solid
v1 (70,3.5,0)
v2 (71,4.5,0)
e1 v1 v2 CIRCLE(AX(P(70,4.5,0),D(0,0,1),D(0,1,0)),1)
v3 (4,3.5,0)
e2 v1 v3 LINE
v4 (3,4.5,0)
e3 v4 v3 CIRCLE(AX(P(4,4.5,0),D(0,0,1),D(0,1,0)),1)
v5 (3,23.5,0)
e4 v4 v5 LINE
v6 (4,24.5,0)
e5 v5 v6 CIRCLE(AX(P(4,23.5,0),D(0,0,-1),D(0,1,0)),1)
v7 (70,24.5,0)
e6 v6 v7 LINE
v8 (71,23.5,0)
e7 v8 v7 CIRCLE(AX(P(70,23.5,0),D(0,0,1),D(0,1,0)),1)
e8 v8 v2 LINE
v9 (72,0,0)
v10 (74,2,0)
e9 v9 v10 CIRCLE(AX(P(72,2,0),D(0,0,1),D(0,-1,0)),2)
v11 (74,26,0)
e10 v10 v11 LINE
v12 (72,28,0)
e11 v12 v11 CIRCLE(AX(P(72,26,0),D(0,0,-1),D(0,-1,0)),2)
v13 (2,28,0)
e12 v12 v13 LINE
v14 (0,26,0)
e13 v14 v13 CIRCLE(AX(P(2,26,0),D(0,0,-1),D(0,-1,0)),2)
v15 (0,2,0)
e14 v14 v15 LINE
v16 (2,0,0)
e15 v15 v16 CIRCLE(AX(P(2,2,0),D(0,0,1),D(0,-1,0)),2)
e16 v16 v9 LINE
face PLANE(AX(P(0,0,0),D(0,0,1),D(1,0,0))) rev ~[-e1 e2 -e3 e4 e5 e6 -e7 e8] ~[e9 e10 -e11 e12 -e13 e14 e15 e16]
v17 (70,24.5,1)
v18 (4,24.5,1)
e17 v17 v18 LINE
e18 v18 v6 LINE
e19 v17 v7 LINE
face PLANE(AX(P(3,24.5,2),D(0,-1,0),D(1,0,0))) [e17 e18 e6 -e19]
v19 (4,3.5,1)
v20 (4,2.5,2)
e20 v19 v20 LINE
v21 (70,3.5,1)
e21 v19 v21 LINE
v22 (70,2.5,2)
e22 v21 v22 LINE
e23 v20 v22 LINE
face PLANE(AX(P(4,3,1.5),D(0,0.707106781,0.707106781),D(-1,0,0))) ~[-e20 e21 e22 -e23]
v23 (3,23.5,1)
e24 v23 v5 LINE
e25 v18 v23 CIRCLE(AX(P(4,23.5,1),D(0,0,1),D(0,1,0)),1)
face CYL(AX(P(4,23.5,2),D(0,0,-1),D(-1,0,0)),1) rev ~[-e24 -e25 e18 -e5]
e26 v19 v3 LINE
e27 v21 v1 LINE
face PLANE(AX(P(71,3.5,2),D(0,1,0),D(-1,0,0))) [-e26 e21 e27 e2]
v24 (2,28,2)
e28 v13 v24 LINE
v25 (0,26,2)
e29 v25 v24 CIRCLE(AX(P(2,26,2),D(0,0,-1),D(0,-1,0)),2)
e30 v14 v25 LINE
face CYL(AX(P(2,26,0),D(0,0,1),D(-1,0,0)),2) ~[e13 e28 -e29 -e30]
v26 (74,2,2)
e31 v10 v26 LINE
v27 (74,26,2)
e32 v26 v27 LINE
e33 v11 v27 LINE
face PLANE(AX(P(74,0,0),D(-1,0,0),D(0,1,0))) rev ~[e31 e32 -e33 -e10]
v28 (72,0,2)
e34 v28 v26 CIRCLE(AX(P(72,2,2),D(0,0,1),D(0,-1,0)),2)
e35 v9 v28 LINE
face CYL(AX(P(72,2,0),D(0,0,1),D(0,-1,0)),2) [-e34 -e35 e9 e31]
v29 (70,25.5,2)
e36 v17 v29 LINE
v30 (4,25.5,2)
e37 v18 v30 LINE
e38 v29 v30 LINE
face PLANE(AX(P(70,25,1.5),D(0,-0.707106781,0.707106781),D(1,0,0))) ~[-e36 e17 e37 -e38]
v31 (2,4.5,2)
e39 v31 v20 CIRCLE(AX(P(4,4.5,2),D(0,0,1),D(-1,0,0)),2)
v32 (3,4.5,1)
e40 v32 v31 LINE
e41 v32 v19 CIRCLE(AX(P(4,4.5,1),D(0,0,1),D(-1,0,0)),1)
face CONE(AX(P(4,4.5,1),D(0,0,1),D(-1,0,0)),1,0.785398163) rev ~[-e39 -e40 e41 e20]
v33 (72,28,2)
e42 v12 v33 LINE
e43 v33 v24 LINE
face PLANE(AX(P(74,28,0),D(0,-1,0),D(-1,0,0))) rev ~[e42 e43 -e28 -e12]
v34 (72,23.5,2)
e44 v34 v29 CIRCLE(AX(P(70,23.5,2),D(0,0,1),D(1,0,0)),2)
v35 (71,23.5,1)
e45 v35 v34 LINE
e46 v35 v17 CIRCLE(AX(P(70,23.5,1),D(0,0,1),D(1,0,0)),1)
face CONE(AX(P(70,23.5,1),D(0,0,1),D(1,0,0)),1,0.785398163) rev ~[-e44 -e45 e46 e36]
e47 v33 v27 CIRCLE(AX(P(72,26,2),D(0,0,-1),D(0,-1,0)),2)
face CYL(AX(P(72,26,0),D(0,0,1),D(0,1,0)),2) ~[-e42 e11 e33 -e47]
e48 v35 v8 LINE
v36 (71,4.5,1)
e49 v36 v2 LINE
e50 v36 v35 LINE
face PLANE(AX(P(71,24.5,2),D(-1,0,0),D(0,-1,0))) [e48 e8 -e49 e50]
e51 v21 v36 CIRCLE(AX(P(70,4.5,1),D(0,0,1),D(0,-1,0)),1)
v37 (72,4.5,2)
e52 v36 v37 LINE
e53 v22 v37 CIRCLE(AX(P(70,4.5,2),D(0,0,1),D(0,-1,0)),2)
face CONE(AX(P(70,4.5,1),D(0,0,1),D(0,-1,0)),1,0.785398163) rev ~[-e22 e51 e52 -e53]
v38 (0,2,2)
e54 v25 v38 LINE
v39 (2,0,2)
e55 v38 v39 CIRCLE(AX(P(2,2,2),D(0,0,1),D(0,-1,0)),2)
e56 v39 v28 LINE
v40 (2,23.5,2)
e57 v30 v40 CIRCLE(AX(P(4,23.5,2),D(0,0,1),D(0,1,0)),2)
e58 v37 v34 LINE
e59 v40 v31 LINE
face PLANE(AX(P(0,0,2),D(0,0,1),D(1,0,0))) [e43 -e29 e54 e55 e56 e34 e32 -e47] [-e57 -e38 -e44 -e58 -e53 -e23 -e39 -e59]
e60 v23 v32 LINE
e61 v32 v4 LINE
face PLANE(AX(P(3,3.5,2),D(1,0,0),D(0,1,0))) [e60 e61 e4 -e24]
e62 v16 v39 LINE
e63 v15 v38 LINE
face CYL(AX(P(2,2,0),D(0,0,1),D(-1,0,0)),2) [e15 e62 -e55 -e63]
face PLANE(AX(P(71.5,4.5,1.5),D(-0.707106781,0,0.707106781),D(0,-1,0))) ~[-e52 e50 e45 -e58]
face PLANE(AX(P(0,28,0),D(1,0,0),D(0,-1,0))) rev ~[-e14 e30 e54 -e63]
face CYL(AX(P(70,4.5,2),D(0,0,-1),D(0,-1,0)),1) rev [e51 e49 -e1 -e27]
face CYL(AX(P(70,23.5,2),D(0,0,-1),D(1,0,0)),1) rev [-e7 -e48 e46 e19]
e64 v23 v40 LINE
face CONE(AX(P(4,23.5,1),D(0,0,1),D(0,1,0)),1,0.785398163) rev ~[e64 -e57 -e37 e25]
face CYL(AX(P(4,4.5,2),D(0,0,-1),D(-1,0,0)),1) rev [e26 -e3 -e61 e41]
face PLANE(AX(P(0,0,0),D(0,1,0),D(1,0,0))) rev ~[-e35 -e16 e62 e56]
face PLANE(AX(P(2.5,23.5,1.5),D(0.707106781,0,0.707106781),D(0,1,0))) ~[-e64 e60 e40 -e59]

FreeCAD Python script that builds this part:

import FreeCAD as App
import Part
import Sketcher
from FreeCAD import Vector


def edges_at(feature, points):
    """Names of the edges that pass closest to the given points."""
    edges = feature.Shape.Edges
    near = lambda p: min(range(len(edges)), key=lambda i: edges[i].distToShape(Part.Vertex(*p))[0])
    return sorted({f"Edge{near(p) + 1}" for p in points})


def add_polygon(sketch, points):
    """Adds a closed chain of lines whose ends are joined by coincident constraints."""
    first, n = sketch.GeometryCount, len(points)
    for a, b in zip(points, points[1:] + points[:1]):
        sketch.addGeometry(Part.LineSegment(App.Vector(*a, 0), App.Vector(*b, 0)), False)
    for i in range(n):
        sketch.addConstraint(Sketcher.Constraint("Coincident", first + i, 2, first + (i + 1) % n, 1))

doc = App.newDocument("Part")
body = doc.addObject("PartDesign::Body", "Body")

# Sketch on XY plane
sketch1 = body.newObject("Sketcher::SketchObject", "Sketch")
sketch1.AttachmentSupport = (doc.getObject("XY_Plane"), [""])
sketch1.MapMode = "FlatFace"
add_polygon(sketch1, [(0, 28), (0, 0), (74, 0), (74, 28)])  # lines 0-3
sketch1.addConstraint([
    Sketcher.Constraint("Vertical", 0),
    Sketcher.Constraint("Horizontal", 1),
    Sketcher.Constraint("Vertical", 2),
    Sketcher.Constraint("Horizontal", 3),
    Sketcher.Constraint("Coincident", 0, 2, -1, 1),
    Sketcher.Constraint("DistanceX", 1, 1, 1, 2, 74.0),
    Sketcher.Constraint("DistanceY", 0, 2, 0, 1, 28.0),
])
pad1 = body.newObject("PartDesign::Pad", "Pad")
pad1.Profile = sketch1
pad1.Length = 2

# Sketch on XY plane
sketch2 = body.newObject("Sketcher::SketchObject", "Sketch001")
sketch2.AttachmentSupport = (doc.getObject("XY_Plane"), [""])
sketch2.MapMode = "FlatFace"
sketch2.AttachmentOffset = App.Placement(Vector(0, 0, 2), App.Rotation())
add_polygon(sketch2, [(71, 24), (3, 24), (3, 4), (71, 4)])  # lines 0-3
sketch2.addConstraint([
    Sketcher.Constraint("Horizontal", 0),
    Sketcher.Constraint("Vertical", 1),
    Sketcher.Constraint("Horizontal", 2),
    Sketcher.Constraint("Vertical", 3),
    Sketcher.Constraint("DistanceX", -1, 1, 0, 2, 3.0),
    Sketcher.Constraint("DistanceY", -1, 1, 1, 2, 3.5),
    Sketcher.Constraint("DistanceX", 0, 2, 0, 1, 68.0),
    Sketcher.Constraint("DistanceY", 1, 2, 1, 1, 21.0),
])
pocket1 = body.newObject("PartDesign::Pocket", "Pocket")
pocket1.Profile = sketch2
pocket1.Length = 2
doc.recompute()

fillet = body.newObject("PartDesign::Fillet", "Fillet")
fillet.Base = (pocket1, edges_at(pocket1, [
    (74, 0, 1),
    (74, 28, 1),
    (0, 28, 1),
    (0, 0, 1),
]))
fillet.Radius = 2
doc.recompute()

fillet2 = body.newObject("PartDesign::Fillet", "Fillet001")
fillet2.Base = (fillet, edges_at(fillet, [
    (71, 24.5, 1),
    (3, 24.5, 1),
    (3, 3.5, 1),
    (71, 3.5, 1),
]))
fillet2.Radius = 1
doc.recompute()

chamfer = body.newObject("PartDesign::Chamfer", "Chamfer")
chamfer.Base = (fillet2, edges_at(fillet2, [
    (3.293, 3.793, 2),
    (3, 14, 2),
    (3.293, 24.207, 2),
    (37, 24.5, 2),
    (70.707, 24.207, 2),
    (71, 14, 2),
    (70.707, 3.793, 2),
    (37, 3.5, 2),
]))
chamfer.Size = 1

doc.recompute()
